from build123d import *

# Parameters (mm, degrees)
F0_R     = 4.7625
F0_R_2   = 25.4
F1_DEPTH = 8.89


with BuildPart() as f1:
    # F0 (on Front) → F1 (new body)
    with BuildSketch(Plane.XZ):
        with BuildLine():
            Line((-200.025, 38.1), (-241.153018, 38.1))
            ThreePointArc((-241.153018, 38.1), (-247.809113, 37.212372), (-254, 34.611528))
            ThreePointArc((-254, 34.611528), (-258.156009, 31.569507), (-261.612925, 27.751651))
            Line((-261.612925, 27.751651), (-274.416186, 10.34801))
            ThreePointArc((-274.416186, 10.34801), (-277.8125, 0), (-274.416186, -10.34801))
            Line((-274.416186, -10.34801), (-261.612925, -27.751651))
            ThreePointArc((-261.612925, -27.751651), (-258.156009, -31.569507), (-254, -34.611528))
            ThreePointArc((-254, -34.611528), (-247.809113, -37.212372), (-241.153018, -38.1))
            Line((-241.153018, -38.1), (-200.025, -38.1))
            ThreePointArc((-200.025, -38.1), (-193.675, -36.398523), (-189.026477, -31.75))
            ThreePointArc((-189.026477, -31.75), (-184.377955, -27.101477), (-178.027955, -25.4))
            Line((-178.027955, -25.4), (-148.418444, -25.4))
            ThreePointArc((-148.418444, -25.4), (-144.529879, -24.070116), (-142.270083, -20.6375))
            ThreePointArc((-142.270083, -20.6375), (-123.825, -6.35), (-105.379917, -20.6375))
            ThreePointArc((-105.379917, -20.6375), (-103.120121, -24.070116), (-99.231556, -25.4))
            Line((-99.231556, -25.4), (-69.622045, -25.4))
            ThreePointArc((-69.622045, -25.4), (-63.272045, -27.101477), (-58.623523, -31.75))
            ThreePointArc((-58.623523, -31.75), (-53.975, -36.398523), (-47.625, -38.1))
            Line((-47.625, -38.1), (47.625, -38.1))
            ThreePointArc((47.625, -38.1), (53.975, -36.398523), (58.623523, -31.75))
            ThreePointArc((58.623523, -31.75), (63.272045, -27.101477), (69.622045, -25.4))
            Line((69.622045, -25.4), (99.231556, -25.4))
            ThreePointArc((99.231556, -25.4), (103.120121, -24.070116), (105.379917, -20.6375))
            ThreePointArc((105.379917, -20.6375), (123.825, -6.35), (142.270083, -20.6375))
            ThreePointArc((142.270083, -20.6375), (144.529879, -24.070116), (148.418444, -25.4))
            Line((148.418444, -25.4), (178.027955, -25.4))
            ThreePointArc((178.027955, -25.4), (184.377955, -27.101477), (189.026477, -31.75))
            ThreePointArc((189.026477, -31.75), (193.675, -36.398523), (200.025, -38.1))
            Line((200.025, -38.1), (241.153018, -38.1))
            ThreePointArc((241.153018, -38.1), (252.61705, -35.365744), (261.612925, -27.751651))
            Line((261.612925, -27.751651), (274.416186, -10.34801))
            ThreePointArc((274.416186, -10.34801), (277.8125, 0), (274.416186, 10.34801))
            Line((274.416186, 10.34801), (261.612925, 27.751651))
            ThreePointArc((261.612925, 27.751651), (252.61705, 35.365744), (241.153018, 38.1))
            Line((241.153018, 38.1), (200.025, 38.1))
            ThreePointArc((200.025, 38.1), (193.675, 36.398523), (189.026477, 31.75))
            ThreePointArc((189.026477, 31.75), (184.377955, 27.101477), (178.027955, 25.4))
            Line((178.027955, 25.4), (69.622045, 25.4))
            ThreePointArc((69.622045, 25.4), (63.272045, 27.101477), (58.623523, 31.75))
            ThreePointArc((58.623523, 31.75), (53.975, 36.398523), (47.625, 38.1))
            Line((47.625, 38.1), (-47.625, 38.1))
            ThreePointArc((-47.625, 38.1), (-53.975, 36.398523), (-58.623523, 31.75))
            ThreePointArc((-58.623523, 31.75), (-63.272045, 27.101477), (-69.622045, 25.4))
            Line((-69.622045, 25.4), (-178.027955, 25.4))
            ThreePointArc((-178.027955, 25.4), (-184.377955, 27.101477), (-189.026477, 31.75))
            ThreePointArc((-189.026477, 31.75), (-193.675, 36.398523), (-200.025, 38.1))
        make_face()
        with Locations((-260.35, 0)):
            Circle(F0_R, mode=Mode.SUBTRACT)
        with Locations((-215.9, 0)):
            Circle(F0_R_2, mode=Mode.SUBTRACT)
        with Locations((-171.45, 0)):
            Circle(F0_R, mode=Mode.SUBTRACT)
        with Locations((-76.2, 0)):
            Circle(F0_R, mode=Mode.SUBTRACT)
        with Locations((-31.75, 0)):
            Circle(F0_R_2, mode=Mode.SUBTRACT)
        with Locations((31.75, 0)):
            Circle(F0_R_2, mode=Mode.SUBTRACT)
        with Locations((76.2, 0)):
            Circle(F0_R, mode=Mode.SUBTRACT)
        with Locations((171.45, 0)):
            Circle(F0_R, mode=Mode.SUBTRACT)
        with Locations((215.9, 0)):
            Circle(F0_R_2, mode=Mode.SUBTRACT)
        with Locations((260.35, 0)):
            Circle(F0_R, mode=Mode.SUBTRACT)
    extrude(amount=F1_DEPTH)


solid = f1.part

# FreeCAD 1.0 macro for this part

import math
import FreeCAD as App
import Part
import Sketcher
Q = App.Units.Quantity

doc = App.newDocument("Part")
body = doc.addObject("PartDesign::Body", "Body")

# Sketch on XZ plane
sketch1 = body.newObject("Sketcher::SketchObject", "Sketch")
sketch1.AttachmentSupport = (doc.getObject("XZ_Plane"), [""])
sketch1.MapMode = "FlatFace"
sketch1.addGeometry([
    Part.LineSegment(App.Vector(-200, 38.1, 0), App.Vector(-241.2, 38.1, 0)),  # 0
    Part.ArcOfCircle(Part.Circle(App.Vector(-241.2, 12.7, 0), App.Vector(0, 0, 1), 25.4), math.radians(90), math.radians(120)),  # 1
    Part.ArcOfCircle(Part.Circle(App.Vector(-241.2, 12.7, 0), App.Vector(0, 0, 1), 25.4), math.radians(120), math.radians(144)),  # 2
    Part.LineSegment(App.Vector(-261.6, 27.8, 0), App.Vector(-274.4, 10.3, 0)),  # 3
    Part.ArcOfCircle(Part.Circle(App.Vector(-260.4, 0, 0), App.Vector(0, 0, 1), 17.5), math.radians(144), math.radians(216)),  # 4
    Part.LineSegment(App.Vector(-274.4, -10.3, 0), App.Vector(-261.6, -27.8, 0)),  # 5
    Part.ArcOfCircle(Part.Circle(App.Vector(-241.2, -12.7, 0), App.Vector(0, 0, 1), 25.4), math.radians(-144), math.radians(-120)),  # 6
    Part.ArcOfCircle(Part.Circle(App.Vector(-241.2, -12.7, 0), App.Vector(0, 0, 1), 25.4), math.radians(-120), math.radians(-90)),  # 7
    Part.LineSegment(App.Vector(-241.2, -38.1, 0), App.Vector(-200, -38.1, 0)),  # 8
    Part.ArcOfCircle(Part.Circle(App.Vector(-200, -25.4, 0), App.Vector(0, 0, 1), 12.7), math.radians(-90), math.radians(-30)),  # 9
    Part.ArcOfCircle(Part.Circle(App.Vector(-178, -38.1, 0), App.Vector(0, 0, 1), 12.7), math.radians(90), math.radians(150)),  # 10
    Part.LineSegment(App.Vector(-178, -25.4, 0), App.Vector(-148.4, -25.4, 0)),  # 11
    Part.ArcOfCircle(Part.Circle(App.Vector(-148.4, -19.1, 0), App.Vector(0, 0, 1), 6.3), math.radians(-90), math.radians(-14)),  # 12
    Part.ArcOfCircle(Part.Circle(App.Vector(-123.8, -25.4, 0), App.Vector(0, 0, 1), 19), math.radians(14), math.radians(166)),  # 13
    Part.ArcOfCircle(Part.Circle(App.Vector(-99.2, -19.1, 0), App.Vector(0, 0, 1), 6.3), math.radians(-166), math.radians(-90)),  # 14
    Part.LineSegment(App.Vector(-99.2, -25.4, 0), App.Vector(-69.6, -25.4, 0)),  # 15
    Part.ArcOfCircle(Part.Circle(App.Vector(-69.6, -38.1, 0), App.Vector(0, 0, 1), 12.7), math.radians(30), math.radians(90)),  # 16
    Part.ArcOfCircle(Part.Circle(App.Vector(-47.6, -25.4, 0), App.Vector(0, 0, 1), 12.7), math.radians(-150), math.radians(-90)),  # 17
    Part.LineSegment(App.Vector(-47.6, -38.1, 0), App.Vector(47.6, -38.1, 0)),  # 18
    Part.ArcOfCircle(Part.Circle(App.Vector(47.6, -25.4, 0), App.Vector(0, 0, 1), 12.7), math.radians(-90), math.radians(-30)),  # 19
    Part.ArcOfCircle(Part.Circle(App.Vector(69.6, -38.1, 0), App.Vector(0, 0, 1), 12.7), math.radians(90), math.radians(150)),  # 20
    Part.LineSegment(App.Vector(69.6, -25.4, 0), App.Vector(99.2, -25.4, 0)),  # 21
    Part.ArcOfCircle(Part.Circle(App.Vector(99.2, -19.1, 0), App.Vector(0, 0, 1), 6.3), math.radians(-90), math.radians(-14)),  # 22
    Part.ArcOfCircle(Part.Circle(App.Vector(123.8, -25.4, 0), App.Vector(0, 0, 1), 19), math.radians(14), math.radians(166)),  # 23
    Part.ArcOfCircle(Part.Circle(App.Vector(148.4, -19.1, 0), App.Vector(0, 0, 1), 6.3), math.radians(-166), math.radians(-90)),  # 24
    Part.LineSegment(App.Vector(148.4, -25.4, 0), App.Vector(178, -25.4, 0)),  # 25
    Part.ArcOfCircle(Part.Circle(App.Vector(178, -38.1, 0), App.Vector(0, 0, 1), 12.7), math.radians(30), math.radians(90)),  # 26
    Part.ArcOfCircle(Part.Circle(App.Vector(200, -25.4, 0), App.Vector(0, 0, 1), 12.7), math.radians(-150), math.radians(-90)),  # 27
    Part.LineSegment(App.Vector(200, -38.1, 0), App.Vector(241.2, -38.1, 0)),  # 28
    Part.ArcOfCircle(Part.Circle(App.Vector(241.2, -12.7, 0), App.Vector(0, 0, 1), 25.4), math.radians(-90), math.radians(-36)),  # 29
    Part.LineSegment(App.Vector(261.6, -27.8, 0), App.Vector(274.4, -10.3, 0)),  # 30
    Part.ArcOfCircle(Part.Circle(App.Vector(260.4, 0, 0), App.Vector(0, 0, 1), 17.5), math.radians(-36), math.radians(36)),  # 31
    Part.LineSegment(App.Vector(274.4, 10.3, 0), App.Vector(261.6, 27.8, 0)),  # 32
    Part.ArcOfCircle(Part.Circle(App.Vector(241.2, 12.7, 0), App.Vector(0, 0, 1), 25.4), math.radians(36), math.radians(90)),  # 33
    Part.LineSegment(App.Vector(241.2, 38.1, 0), App.Vector(200, 38.1, 0)),  # 34
    Part.ArcOfCircle(Part.Circle(App.Vector(200, 25.4, 0), App.Vector(0, 0, 1), 12.7), math.radians(90), math.radians(150)),  # 35
    Part.ArcOfCircle(Part.Circle(App.Vector(178, 38.1, 0), App.Vector(0, 0, 1), 12.7), math.radians(-90), math.radians(-30)),  # 36
    Part.LineSegment(App.Vector(178, 25.4, 0), App.Vector(69.6, 25.4, 0)),  # 37
    Part.ArcOfCircle(Part.Circle(App.Vector(69.6, 38.1, 0), App.Vector(0, 0, 1), 12.7), math.radians(-150), math.radians(-90)),  # 38
    Part.ArcOfCircle(Part.Circle(App.Vector(47.6, 25.4, 0), App.Vector(0, 0, 1), 12.7), math.radians(30), math.radians(90)),  # 39
    Part.LineSegment(App.Vector(47.6, 38.1, 0), App.Vector(-47.6, 38.1, 0)),  # 40
    Part.ArcOfCircle(Part.Circle(App.Vector(-47.6, 25.4, 0), App.Vector(0, 0, 1), 12.7), math.radians(90), math.radians(150)),  # 41
    Part.ArcOfCircle(Part.Circle(App.Vector(-69.6, 38.1, 0), App.Vector(0, 0, 1), 12.7), math.radians(-90), math.radians(-30)),  # 42
    Part.LineSegment(App.Vector(-69.6, 25.4, 0), App.Vector(-178, 25.4, 0)),  # 43
    Part.ArcOfCircle(Part.Circle(App.Vector(-178, 38.1, 0), App.Vector(0, 0, 1), 12.7), math.radians(-150), math.radians(-90)),  # 44
    Part.ArcOfCircle(Part.Circle(App.Vector(-200, 25.4, 0), App.Vector(0, 0, 1), 12.7), math.radians(30), math.radians(90)),  # 45
    Part.Circle(App.Vector(-260.4, 0, 0), App.Vector(0, 0, 1), 4.8),  # 46
    Part.Circle(App.Vector(-215.9, 0, 0), App.Vector(0, 0, 1), 25.4),  # 47
    Part.Circle(App.Vector(-171.4, 0, 0), App.Vector(0, 0, 1), 4.8),  # 48
    Part.Circle(App.Vector(-76.2, 0, 0), App.Vector(0, 0, 1), 4.8),  # 49
    Part.Circle(App.Vector(-31.8, 0, 0), App.Vector(0, 0, 1), 25.4),  # 50
    Part.Circle(App.Vector(31.8, 0, 0), App.Vector(0, 0, 1), 25.4),  # 51
    Part.Circle(App.Vector(76.2, 0, 0), App.Vector(0, 0, 1), 4.8),  # 52
    Part.Circle(App.Vector(171.4, 0, 0), App.Vector(0, 0, 1), 4.8),  # 53
    Part.Circle(App.Vector(215.9, 0, 0), App.Vector(0, 0, 1), 25.4),  # 54
    Part.Circle(App.Vector(260.4, 0, 0), App.Vector(0, 0, 1), 4.8),  # 55
], False)
sketch1.addConstraint([
    Sketcher.Constraint("Tangent", 0, 2, 1, 1),
    Sketcher.Constraint("Tangent", 1, 2, 2, 1),
    Sketcher.Constraint("Tangent", 2, 2, 3, 1),
    Sketcher.Constraint("Tangent", 3, 2, 4, 1),
    Sketcher.Constraint("Tangent", 4, 2, 5, 1),
    Sketcher.Constraint("Tangent", 5, 2, 6, 1),
    Sketcher.Constraint("Tangent", 6, 2, 7, 1),
    Sketcher.Constraint("Tangent", 7, 2, 8, 1),
    Sketcher.Constraint("Tangent", 8, 2, 9, 1),
    Sketcher.Constraint("Tangent", 9, 2, 10, 2),
    Sketcher.Constraint("Tangent", 10, 1, 11, 1),
    Sketcher.Constraint("Tangent", 11, 2, 12, 1),
    Sketcher.Constraint("Tangent", 12, 2, 13, 2),
    Sketcher.Constraint("Tangent", 13, 1, 14, 1),
    Sketcher.Constraint("Tangent", 14, 2, 15, 1),
    Sketcher.Constraint("Tangent", 15, 2, 16, 2),
    Sketcher.Constraint("Tangent", 16, 1, 17, 1),
    Sketcher.Constraint("Tangent", 17, 2, 18, 1),
    Sketcher.Constraint("Tangent", 18, 2, 19, 1),
    Sketcher.Constraint("Tangent", 19, 2, 20, 2),
    Sketcher.Constraint("Tangent", 20, 1, 21, 1),
    Sketcher.Constraint("Tangent", 21, 2, 22, 1),
    Sketcher.Constraint("Tangent", 22, 2, 23, 2),
    Sketcher.Constraint("Tangent", 23, 1, 24, 1),
    Sketcher.Constraint("Tangent", 24, 2, 25, 1),
    Sketcher.Constraint("Tangent", 25, 2, 26, 2),
    Sketcher.Constraint("Tangent", 26, 1, 27, 1),
    Sketcher.Constraint("Tangent", 27, 2, 28, 1),
    Sketcher.Constraint("Tangent", 28, 2, 29, 1),
    Sketcher.Constraint("Tangent", 29, 2, 30, 1),
    Sketcher.Constraint("Tangent", 30, 2, 31, 1),
    Sketcher.Constraint("Tangent", 31, 2, 32, 1),
    Sketcher.Constraint("Tangent", 32, 2, 33, 1),
    Sketcher.Constraint("Tangent", 33, 2, 34, 1),
    Sketcher.Constraint("Tangent", 34, 2, 35, 1),
    Sketcher.Constraint("Tangent", 35, 2, 36, 2),
    Sketcher.Constraint("Tangent", 36, 1, 37, 1),
    Sketcher.Constraint("Tangent", 37, 2, 38, 2),
    Sketcher.Constraint("Tangent", 38, 1, 39, 1),
    Sketcher.Constraint("Tangent", 39, 2, 40, 1),
    Sketcher.Constraint("Tangent", 40, 2, 41, 1),
    Sketcher.Constraint("Tangent", 41, 2, 42, 2),
    Sketcher.Constraint("Tangent", 42, 1, 43, 1),
    Sketcher.Constraint("Tangent", 43, 2, 44, 2),
    Sketcher.Constraint("Tangent", 44, 1, 45, 1),
    Sketcher.Constraint("Tangent", 45, 2, 0, 1),
    Sketcher.Constraint("Horizontal", 0),
    Sketcher.Constraint("Horizontal", 8),
    Sketcher.Constraint("Horizontal", 11),
    Sketcher.Constraint("Horizontal", 15),
    Sketcher.Constraint("Horizontal", 18),
    Sketcher.Constraint("Horizontal", 21),
    Sketcher.Constraint("Horizontal", 25),
    Sketcher.Constraint("Horizontal", 28),
    Sketcher.Constraint("Horizontal", 34),
    Sketcher.Constraint("Horizontal", 37),
    Sketcher.Constraint("Horizontal", 40),
    Sketcher.Constraint("Horizontal", 43),
    Sketcher.Constraint("Coincident", 46, 3, 4, 3),
    Sketcher.Constraint("Coincident", 55, 3, 31, 3),
    Sketcher.Constraint("Equal", 2, 6),
    Sketcher.Constraint("Equal", 1, 7),
    Sketcher.Constraint("Equal", 12, 14),
    Sketcher.Constraint("Equal", 10, 16),
    Sketcher.Constraint("Equal", 9, 17),
    Sketcher.Constraint("Equal", 17, 19),
    Sketcher.Constraint("Equal", 16, 20),
    Sketcher.Constraint("Equal", 14, 22),
    Sketcher.Constraint("Equal", 13, 23),
    Sketcher.Constraint("Equal", 22, 24),
    Sketcher.Constraint("Equal", 20, 26),
    Sketcher.Constraint("Equal", 19, 27),
    Sketcher.Constraint("Equal", 6, 29),
    Sketcher.Constraint("Equal", 4, 31),
    Sketcher.Constraint("Equal", 29, 33),
    Sketcher.Constraint("Equal", 27, 35),
    Sketcher.Constraint("Equal", 26, 36),
    Sketcher.Constraint("Equal", 36, 38),
    Sketcher.Constraint("Equal", 35, 39),
    Sketcher.Constraint("Equal", 39, 41),
    Sketcher.Constraint("Equal", 38, 42),
    Sketcher.Constraint("Equal", 42, 44),
    Sketcher.Constraint("Equal", 41, 45),
    Sketcher.Constraint("Equal", 6, 47),
    Sketcher.Constraint("Equal", 46, 48),
    Sketcher.Constraint("Equal", 48, 49),
    Sketcher.Constraint("Equal", 47, 50),
    Sketcher.Constraint("Equal", 50, 51),
    Sketcher.Constraint("Equal", 49, 52),
    Sketcher.Constraint("Equal", 52, 53),
    Sketcher.Constraint("Equal", 51, 54),
    Sketcher.Constraint("Equal", 53, 55),
    Sketcher.Constraint("Symmetric", 1, 3, 29, 3, -1, 1),
    Sketcher.Constraint("Symmetric", 4, 3, 31, 3, -1, 1),
    Sketcher.Constraint("Symmetric", 6, 3, 33, 3, -1, 1),
    Sketcher.Constraint("Symmetric", 9, 3, 35, 3, -1, 1),
    Sketcher.Constraint("Symmetric", 16, 3, 38, 3, -1, 1),
    Sketcher.Constraint("Symmetric", 19, 3, 41, 3, -1, 1),
    Sketcher.Constraint("Symmetric", 26, 3, 44, 3, -1, 1),
    Sketcher.Constraint("Symmetric", 50, 3, 51, 3, -1, 1),
    Sketcher.Constraint("Symmetric", 49, 3, 52, 3, -1, 1),
    Sketcher.Constraint("Symmetric", 48, 3, 53, 3, -1, 1),
    Sketcher.Constraint("Symmetric", 47, 3, 54, 3, -1, 1),
    Sketcher.Constraint("Symmetric", 16, 3, 20, 3, -2),
    Sketcher.Constraint("Symmetric", 13, 3, 23, 3, -2),
    Sketcher.Constraint("Symmetric", 10, 3, 26, 3, -2),
    Sketcher.Constraint("Symmetric", 6, 3, 29, 3, -2),
    Sketcher.Constraint("PointOnObject", 4, 3, -1),
    Sketcher.Constraint("PointOnObject", 47, 3, -1),
    Sketcher.Constraint("PointOnObject", 48, 3, -1),
    Sketcher.Constraint("PointOnObject", 49, 3, -1),
    Sketcher.Constraint("PointOnObject", 50, 3, -1),
    Sketcher.Constraint("Horizontal", 9, 3, 13, 3),
    Sketcher.Constraint("Horizontal", 12, 3, 14, 3),
    Sketcher.Constraint("Horizontal", 13, 3, 17, 3),
    Sketcher.Constraint("Horizontal", 27, 3, 10, 1),
    Sketcher.Constraint("Vertical", 1, 2, 6, 2),
    Sketcher.Constraint("Equal", 11, 15),
    Sketcher.Constraint("Diameter", 47, Q("2 in")),
    Sketcher.Constraint("Radius", 9, Q("0.5 in")),
    Sketcher.Constraint("Radius", 10, Q("0.4999998 in")),
    Sketcher.Constraint("Radius", 12, Q("0.25 in")),
    Sketcher.Constraint("Radius", 13, Q("0.75 in")),
    Sketcher.Constraint("Diameter", 46, Q("0.375 in")),
    Sketcher.Constraint("DistanceY", 9, 3, -1, 1, Q("1 in")),
    Sketcher.Constraint("DistanceX", 49, 3, -1, 1, Q("3 in")),
    Sketcher.Constraint("DistanceX", 1, 2, -1, 1, Q("10 in")),
    Sketcher.Constraint("Radius", 4, Q("0.6875 in")),
    Sketcher.Constraint("DistanceX", 18, 1, 18, 2, Q("3.75 in")),
    Sketcher.Constraint("DistanceX", 47, 3, -1, 1, Q("8.5 in")),
    Sketcher.Constraint("DistanceX", 4, 3, -1, 1, Q("10.25 in")),
    Sketcher.Constraint("DistanceX", 48, 3, -1, 1, Q("6.75 in")),
    Sketcher.Constraint("DistanceX", 50, 3, -1, 1, Q("1.25 in")),
    Sketcher.Constraint("DistanceX", 9, 3, -1, 1, Q("7.875 in")),
    Sketcher.Constraint("Distance", 3, 21.605791),
])
pad1 = body.newObject("PartDesign::Pad", "Pad")
pad1.Profile = sketch1
pad1.Length = Q("0.35 in")

doc.recompute()
